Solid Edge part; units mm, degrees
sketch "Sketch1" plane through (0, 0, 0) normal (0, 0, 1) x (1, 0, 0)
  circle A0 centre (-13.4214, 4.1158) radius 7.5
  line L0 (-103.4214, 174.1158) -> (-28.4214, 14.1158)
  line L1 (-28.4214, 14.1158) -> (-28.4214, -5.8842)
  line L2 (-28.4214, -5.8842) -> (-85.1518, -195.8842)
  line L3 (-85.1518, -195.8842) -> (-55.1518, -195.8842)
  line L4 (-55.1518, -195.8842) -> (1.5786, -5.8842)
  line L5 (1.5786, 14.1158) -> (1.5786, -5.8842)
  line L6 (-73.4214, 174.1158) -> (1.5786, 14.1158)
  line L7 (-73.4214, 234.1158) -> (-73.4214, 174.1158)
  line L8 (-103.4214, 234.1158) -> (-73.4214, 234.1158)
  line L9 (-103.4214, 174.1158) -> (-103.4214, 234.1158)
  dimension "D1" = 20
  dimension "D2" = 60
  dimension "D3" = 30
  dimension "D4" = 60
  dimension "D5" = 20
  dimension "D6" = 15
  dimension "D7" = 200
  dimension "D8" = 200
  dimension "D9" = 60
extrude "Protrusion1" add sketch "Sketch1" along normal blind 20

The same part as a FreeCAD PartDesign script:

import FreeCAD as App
import Part
import Sketcher

V = App.Vector


def add_polygon(sketch, points):
    """Adds a closed chain of lines whose ends are joined by coincident constraints."""
    first, n = sketch.GeometryCount, len(points)
    for a, b in zip(points, points[1:] + points[:1]):
        sketch.addGeometry(Part.LineSegment(App.Vector(*a, 0), App.Vector(*b, 0)), False)
    for i in range(n):
        sketch.addConstraint(Sketcher.Constraint("Coincident", first + i, 2, first + (i + 1) % n, 1))

doc = App.newDocument("Part")
params = doc.addObject("Spreadsheet::Sheet", "Params")
for row, (alias, value) in enumerate([
    ("sketch1_diameter", "15 mm"),
    ("sketch1_width", "30 mm"),
    ("sketch1_height", "60 mm"),
    ("sketch1_height2", "20 mm"),
    ("pad1_length", "20 mm"),
], start=1):
    params.set(f"A{row}", alias)
    params.set(f"B{row}", "=" + value)
    params.setAlias(f"B{row}", alias)

body = doc.addObject("PartDesign::Body", "Body")

# Sketch on XY plane
sketch1 = body.newObject("Sketcher::SketchObject", "Sketch")
sketch1.AttachmentSupport = (doc.getObject("XY_Plane"), [""])
sketch1.MapMode = "FlatFace"
add_polygon(sketch1, [(-103, 234), (-103, 174), (-28, 14), (-28, -6), (-85, -196), (-55, -196), (2, -6), (2, 14), (-73, 174), (-73, 234)])  # lines 0-9
sketch1.addGeometry(Part.Circle(V(-13, 4, 0), V(0, 0, 1), 8), False)  # 10
sketch1.addConstraint([
    Sketcher.Constraint("Vertical", 0),
    Sketcher.Constraint("Vertical", 2),
    Sketcher.Constraint("Horizontal", 4),
    Sketcher.Constraint("Vertical", 6),
    Sketcher.Constraint("Vertical", 8),
    Sketcher.Constraint("Horizontal", 9),
    Sketcher.Constraint("Parallel", 3, 5),
    Sketcher.Constraint("Parallel", 1, 7),
    Sketcher.Constraint("Horizontal", 2, 2, 5, 2),
    Sketcher.Constraint("Horizontal", 1, 2, 6, 2),
    Sketcher.Constraint("Horizontal", 0, 2, 7, 2),
    Sketcher.Constraint("Diameter", 10, 15.0),
    Sketcher.Constraint("DistanceX", 4, 1, 4, 2, 30.0),
    Sketcher.Constraint("DistanceY", 0, 2, 0, 1, 60.0),
    Sketcher.Constraint("DistanceY", 2, 2, 2, 1, 20.0),
    Sketcher.Constraint("DistanceX", 0, 2, 10, 3, 90.0),
    Sketcher.Constraint("DistanceY", 10, 3, 0, 2, 170.0),
    Sketcher.Constraint("DistanceX", 1, 2, 10, 3, 15.0),
    Sketcher.Constraint("DistanceY", 10, 3, 1, 2, 10.0),
    Sketcher.Constraint("DistanceY", 3, 2, 2, 2, 190.0),
    Sketcher.Constraint("DistanceX", 10, 3, -1, 1, 13.4214),
    Sketcher.Constraint("Distance", 3, 198.2885),
    Sketcher.Constraint("DistanceY", -1, 1, 10, 3, 4.1158),
])
sketch1.setExpression("Constraints[21]", "Params.sketch1_diameter")
sketch1.setExpression("Constraints[22]", "Params.sketch1_width")
sketch1.setExpression("Constraints[23]", "Params.sketch1_height")
sketch1.setExpression("Constraints[24]", "Params.sketch1_height2")
pad1 = body.newObject("PartDesign::Pad", "Pad")
pad1.Profile = sketch1
pad1.setExpression("Length", "Params.pad1_length")

doc.recompute()
